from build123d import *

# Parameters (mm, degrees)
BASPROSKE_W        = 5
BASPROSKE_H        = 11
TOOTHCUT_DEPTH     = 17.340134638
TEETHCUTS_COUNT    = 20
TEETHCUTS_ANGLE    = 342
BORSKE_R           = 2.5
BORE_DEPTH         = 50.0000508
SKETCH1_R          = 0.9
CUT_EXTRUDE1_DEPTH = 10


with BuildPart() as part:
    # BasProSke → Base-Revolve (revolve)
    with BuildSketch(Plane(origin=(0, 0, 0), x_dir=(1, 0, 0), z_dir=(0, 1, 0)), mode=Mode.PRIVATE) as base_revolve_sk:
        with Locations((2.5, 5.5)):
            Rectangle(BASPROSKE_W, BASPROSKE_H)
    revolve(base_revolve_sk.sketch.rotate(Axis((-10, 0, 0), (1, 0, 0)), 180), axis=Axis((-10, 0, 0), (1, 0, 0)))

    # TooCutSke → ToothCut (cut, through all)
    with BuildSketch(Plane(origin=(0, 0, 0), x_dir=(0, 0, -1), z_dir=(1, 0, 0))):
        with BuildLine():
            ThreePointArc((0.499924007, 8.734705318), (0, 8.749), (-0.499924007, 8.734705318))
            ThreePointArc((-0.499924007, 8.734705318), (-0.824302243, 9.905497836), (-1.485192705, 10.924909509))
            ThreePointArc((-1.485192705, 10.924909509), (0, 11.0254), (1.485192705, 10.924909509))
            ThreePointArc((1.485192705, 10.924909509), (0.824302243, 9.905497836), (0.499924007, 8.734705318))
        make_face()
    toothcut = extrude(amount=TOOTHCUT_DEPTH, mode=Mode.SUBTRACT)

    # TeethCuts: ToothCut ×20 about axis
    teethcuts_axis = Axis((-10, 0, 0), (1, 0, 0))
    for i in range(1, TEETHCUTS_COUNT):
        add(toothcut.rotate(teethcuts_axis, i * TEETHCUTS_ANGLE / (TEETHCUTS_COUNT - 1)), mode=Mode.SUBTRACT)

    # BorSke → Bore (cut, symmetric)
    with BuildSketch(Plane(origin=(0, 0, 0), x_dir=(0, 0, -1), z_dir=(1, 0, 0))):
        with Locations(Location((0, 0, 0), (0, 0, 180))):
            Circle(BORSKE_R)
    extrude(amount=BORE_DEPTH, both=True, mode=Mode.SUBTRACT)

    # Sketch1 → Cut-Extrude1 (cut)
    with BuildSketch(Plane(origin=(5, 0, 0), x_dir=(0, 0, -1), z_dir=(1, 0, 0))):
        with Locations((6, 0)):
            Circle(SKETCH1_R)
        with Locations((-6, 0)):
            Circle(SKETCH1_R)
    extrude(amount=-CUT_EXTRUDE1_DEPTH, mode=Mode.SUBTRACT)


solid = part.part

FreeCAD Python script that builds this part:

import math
import FreeCAD as App
import Part
import Sketcher


def add_polygon(sketch, points):
    """Adds a closed chain of lines whose ends are joined by coincident constraints."""
    first, n = sketch.GeometryCount, len(points)
    for a, b in zip(points, points[1:] + points[:1]):
        sketch.addGeometry(Part.LineSegment(App.Vector(*a, 0), App.Vector(*b, 0)), False)
    for i in range(n):
        sketch.addConstraint(Sketcher.Constraint("Coincident", first + i, 2, first + (i + 1) % n, 1))

doc = App.newDocument("Part")
body = doc.addObject("PartDesign::Body", "Body")

# Sketch on XZ plane
sketch1 = doc.addObject("Sketcher::SketchObject", "Sketch")
body.addObject(sketch1)
sketch1.AttachmentSupport = (doc.XZ_Plane, [""])
sketch1.MapMode = "FlatFace"
add_polygon(sketch1, [(0, -11), (0, 0), (5, 0), (5, -11)])  # lines 0-3
sketch1.addConstraint(Sketcher.Constraint("Vertical", 0))
sketch1.addConstraint(Sketcher.Constraint("Horizontal", 1))
sketch1.addConstraint(Sketcher.Constraint("Vertical", 2))
sketch1.addConstraint(Sketcher.Constraint("Horizontal", 3))
sketch1.addConstraint(Sketcher.Constraint("Coincident", 0, 2, -1, 1))
sketch1.addConstraint(Sketcher.Constraint("DistanceX", 1, 1, 1, 2, 5.0))
sketch1.addConstraint(Sketcher.Constraint("DistanceY", 0, 1, 0, 2, 11.0))
revolution = doc.addObject("PartDesign::Revolution", "Revolution")
body.addObject(revolution)
revolution.Profile = sketch1
revolution.ReferenceAxis = (sketch1, ["H_Axis"])
revolution.Angle = 360

# Sketch on YZ plane
sketch2 = doc.addObject("Sketcher::SketchObject", "Sketch001")
body.addObject(sketch2)
sketch2.AttachmentSupport = (doc.YZ_Plane, [""])
sketch2.MapMode = "FlatFace"
sketch2.addGeometry(Part.ArcOfCircle(Part.Circle(App.Vector(0, 0, 0), App.Vector(0, 0, 1), 8.7), math.radians(-3.28), math.radians(3.28)), False)
sketch2.addGeometry(Part.ArcOfCircle(Part.Circle(App.Vector(8.3, -4.5, 0), App.Vector(0, 0, 1), 4), math.radians(48), math.radians(83)), False)
sketch2.addGeometry(Part.ArcOfCircle(Part.Circle(App.Vector(0, 0, 0), App.Vector(0, 0, 1), 11), math.radians(-7.74), math.radians(7.74)), False)
sketch2.addGeometry(Part.ArcOfCircle(Part.Circle(App.Vector(8.3, 4.5, 0), App.Vector(0, 0, 1), 4), math.radians(-83), math.radians(-48)), False)
sketch2.addConstraint(Sketcher.Constraint("Coincident", 0, 1, 1, 2))
sketch2.addConstraint(Sketcher.Constraint("Coincident", 1, 1, 2, 1))
sketch2.addConstraint(Sketcher.Constraint("Coincident", 2, 2, 3, 2))
sketch2.addConstraint(Sketcher.Constraint("Coincident", 3, 1, 0, 2))
sketch2.addConstraint(Sketcher.Constraint("Coincident", 0, 3, -1, 1))
sketch2.addConstraint(Sketcher.Constraint("Coincident", 2, 3, -1, 1))
sketch2.addConstraint(Sketcher.Constraint("Equal", 1, 3))
sketch2.addConstraint(Sketcher.Constraint("Symmetric", 1, 3, 3, 3, -1))
sketch2.addConstraint(Sketcher.Constraint("Radius", 1, 4.0))
sketch2.addConstraint(Sketcher.Constraint("Radius", 0, 8.749))
sketch2.addConstraint(Sketcher.Constraint("Radius", 2, 11.0254))
sketch2.addConstraint(Sketcher.Constraint("DistanceY", 1, 3, -1, 1, 4.47219))
sketch2.addConstraint(Sketcher.Constraint("DistanceX", -1, 1, 1, 1, 10.92491))
pocket1 = doc.addObject("PartDesign::Pocket", "Pocket")
body.addObject(pocket1)
pocket1.Profile = sketch2
pocket1.Type = "ThroughAll"
pocket1.Reversed = True
doc.recompute()

polarpattern = doc.addObject("PartDesign::PolarPattern", "PolarPattern")
body.addObject(polarpattern)
polarpattern.Originals = [pocket1]
polarpattern.Axis = (doc.X_Axis, [""])
polarpattern.Angle = 360
polarpattern.Occurrences = 20
body.Tip = polarpattern

# Sketch on YZ plane
sketch3 = doc.addObject("Sketcher::SketchObject", "Sketch002")
body.addObject(sketch3)
sketch3.AttachmentSupport = (doc.YZ_Plane, [""])
sketch3.MapMode = "FlatFace"
sketch3.addGeometry(Part.Circle(App.Vector(0, 0, 0), App.Vector(0, 0, 1), 2.5), False)
sketch3.addConstraint(Sketcher.Constraint("Coincident", 0, 3, -1, 1))
sketch3.addConstraint(Sketcher.Constraint("Diameter", 0, 5.0))
pocket2 = doc.addObject("PartDesign::Pocket", "Pocket001")
body.addObject(pocket2)
pocket2.Profile = sketch3
pocket2.Length = 100.000102
pocket2.Midplane = True

# Sketch on YZ plane
sketch4 = doc.addObject("Sketcher::SketchObject", "Sketch003")
body.addObject(sketch4)
sketch4.AttachmentSupport = (doc.YZ_Plane, [""])
sketch4.MapMode = "FlatFace"
sketch4.AttachmentOffset = App.Placement(App.Vector(0, 0, 5), App.Rotation())
sketch4.addGeometry(Part.Circle(App.Vector(0, -6, 0), App.Vector(0, 0, 1), 0.9), False)
sketch4.addGeometry(Part.Circle(App.Vector(0, 6, 0), App.Vector(0, 0, 1), 0.9), False)
sketch4.addConstraint(Sketcher.Constraint("Equal", 0, 1))
sketch4.addConstraint(Sketcher.Constraint("Symmetric", 0, 3, 1, 3, -1, 1))
sketch4.addConstraint(Sketcher.Constraint("PointOnObject", 0, 3, -2))
sketch4.addConstraint(Sketcher.Constraint("Diameter", 0, 1.8))
sketch4.addConstraint(Sketcher.Constraint("DistanceY", 0, 3, -1, 1, 6.0))
pocket3 = doc.addObject("PartDesign::Pocket", "Pocket002")
body.addObject(pocket3)
pocket3.Profile = sketch4
pocket3.Length = 10

doc.recompute()
